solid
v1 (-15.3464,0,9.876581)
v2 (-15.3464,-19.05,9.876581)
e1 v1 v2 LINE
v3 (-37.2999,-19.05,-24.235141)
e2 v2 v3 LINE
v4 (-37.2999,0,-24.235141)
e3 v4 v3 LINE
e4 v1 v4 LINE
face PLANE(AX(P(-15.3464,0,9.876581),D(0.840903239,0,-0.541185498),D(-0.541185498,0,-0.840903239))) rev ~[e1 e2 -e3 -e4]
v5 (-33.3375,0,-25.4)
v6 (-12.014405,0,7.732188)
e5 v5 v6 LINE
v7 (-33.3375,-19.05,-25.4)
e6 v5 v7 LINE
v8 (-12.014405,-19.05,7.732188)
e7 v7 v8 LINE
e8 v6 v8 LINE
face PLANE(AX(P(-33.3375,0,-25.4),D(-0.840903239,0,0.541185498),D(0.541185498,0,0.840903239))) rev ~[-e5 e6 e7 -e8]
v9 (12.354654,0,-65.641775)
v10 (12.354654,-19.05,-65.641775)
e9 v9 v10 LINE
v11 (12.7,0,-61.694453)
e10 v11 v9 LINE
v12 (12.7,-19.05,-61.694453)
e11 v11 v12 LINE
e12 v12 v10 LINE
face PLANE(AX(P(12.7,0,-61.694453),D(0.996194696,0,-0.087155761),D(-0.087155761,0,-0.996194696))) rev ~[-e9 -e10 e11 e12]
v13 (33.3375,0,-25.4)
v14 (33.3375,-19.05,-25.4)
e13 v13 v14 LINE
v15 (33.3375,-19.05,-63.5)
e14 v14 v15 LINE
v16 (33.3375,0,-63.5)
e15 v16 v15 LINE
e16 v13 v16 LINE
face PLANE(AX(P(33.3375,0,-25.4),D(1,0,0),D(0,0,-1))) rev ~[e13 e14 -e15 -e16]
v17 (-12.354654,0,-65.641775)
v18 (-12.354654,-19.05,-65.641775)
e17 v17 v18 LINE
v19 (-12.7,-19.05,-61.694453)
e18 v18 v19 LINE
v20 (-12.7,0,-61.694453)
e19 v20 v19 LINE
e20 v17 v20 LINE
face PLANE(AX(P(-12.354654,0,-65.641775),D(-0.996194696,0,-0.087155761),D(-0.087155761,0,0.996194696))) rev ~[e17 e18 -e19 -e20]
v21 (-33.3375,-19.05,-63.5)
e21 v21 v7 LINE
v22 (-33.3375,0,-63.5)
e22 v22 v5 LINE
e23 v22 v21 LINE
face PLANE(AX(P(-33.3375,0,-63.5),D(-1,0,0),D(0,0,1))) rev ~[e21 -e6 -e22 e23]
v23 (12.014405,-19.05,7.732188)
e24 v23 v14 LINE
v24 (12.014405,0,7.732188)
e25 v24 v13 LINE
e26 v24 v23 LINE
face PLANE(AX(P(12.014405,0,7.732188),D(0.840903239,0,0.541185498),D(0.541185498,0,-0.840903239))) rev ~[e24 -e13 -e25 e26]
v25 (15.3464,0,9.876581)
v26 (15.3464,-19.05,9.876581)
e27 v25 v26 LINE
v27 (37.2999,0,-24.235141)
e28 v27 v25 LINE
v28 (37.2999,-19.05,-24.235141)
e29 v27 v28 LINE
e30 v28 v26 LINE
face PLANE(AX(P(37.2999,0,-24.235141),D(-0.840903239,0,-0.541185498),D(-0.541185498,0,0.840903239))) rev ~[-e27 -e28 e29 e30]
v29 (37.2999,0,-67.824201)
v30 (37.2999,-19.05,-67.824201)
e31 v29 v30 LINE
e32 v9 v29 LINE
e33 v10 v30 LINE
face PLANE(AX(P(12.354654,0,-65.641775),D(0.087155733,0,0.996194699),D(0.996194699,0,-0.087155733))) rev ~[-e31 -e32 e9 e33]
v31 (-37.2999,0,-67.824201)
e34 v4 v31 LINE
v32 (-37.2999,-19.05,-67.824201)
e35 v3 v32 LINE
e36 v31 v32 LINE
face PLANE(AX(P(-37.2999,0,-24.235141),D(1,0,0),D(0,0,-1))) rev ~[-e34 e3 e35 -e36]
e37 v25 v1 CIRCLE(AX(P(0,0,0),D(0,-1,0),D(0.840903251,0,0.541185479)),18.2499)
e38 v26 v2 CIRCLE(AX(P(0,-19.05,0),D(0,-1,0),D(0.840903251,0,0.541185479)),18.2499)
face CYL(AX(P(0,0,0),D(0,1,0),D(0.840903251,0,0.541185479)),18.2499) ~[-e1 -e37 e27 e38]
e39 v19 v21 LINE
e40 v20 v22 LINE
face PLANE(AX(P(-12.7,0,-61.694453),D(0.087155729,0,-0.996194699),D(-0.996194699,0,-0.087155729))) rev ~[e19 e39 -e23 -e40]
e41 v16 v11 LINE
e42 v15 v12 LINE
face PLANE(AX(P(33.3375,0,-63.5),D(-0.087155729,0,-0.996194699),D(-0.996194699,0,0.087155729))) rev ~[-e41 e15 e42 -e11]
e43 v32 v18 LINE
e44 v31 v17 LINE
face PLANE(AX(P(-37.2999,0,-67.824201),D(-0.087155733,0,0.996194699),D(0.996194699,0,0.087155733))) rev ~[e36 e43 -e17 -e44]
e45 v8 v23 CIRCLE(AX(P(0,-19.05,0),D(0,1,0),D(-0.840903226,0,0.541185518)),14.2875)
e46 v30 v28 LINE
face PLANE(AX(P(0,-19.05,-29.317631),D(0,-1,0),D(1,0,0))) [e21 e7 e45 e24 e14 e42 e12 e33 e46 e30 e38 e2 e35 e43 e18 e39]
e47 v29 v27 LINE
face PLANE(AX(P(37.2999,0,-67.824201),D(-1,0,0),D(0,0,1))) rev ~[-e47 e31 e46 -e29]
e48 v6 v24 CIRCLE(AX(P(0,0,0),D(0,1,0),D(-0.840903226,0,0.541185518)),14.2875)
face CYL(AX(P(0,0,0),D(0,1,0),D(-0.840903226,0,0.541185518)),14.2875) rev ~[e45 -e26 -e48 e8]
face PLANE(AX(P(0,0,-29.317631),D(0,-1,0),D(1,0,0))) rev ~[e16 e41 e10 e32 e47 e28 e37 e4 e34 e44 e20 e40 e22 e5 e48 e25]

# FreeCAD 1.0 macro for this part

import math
import FreeCAD as App
import Part
import Sketcher
Q = App.Units.Quantity

doc = App.newDocument("Part")
body = doc.addObject("PartDesign::Body", "Body")

# Sketch on XZ plane
sketch1 = body.newObject("Sketcher::SketchObject", "Sketch")
sketch1.AttachmentSupport = (doc.getObject("XZ_Plane"), [""])
sketch1.MapMode = "FlatFace"
sketch1.addGeometry([
    Part.ArcOfCircle(Part.Circle(App.Vector(0, 0, 0), App.Vector(0, 0, 1), 14.3), math.radians(33), math.radians(147)),  # 0
    Part.LineSegment(App.Vector(12, 7.7, 0), App.Vector(33.3, -25.4, 0)),  # 1
    Part.LineSegment(App.Vector(33.3, -25.4, 0), App.Vector(33.3, -63.5, 0)),  # 2
    Part.LineSegment(App.Vector(33.3, -63.5, 0), App.Vector(12.7, -61.7, 0)),  # 3
    Part.LineSegment(App.Vector(12.7, -61.7, 0), App.Vector(12.4, -65.6, 0)),  # 4
    Part.LineSegment(App.Vector(12.4, -65.6, 0), App.Vector(37.3, -67.8, 0)),  # 5
    Part.LineSegment(App.Vector(37.3, -67.8, 0), App.Vector(37.3, -24.2, 0)),  # 6
    Part.LineSegment(App.Vector(37.3, -24.2, 0), App.Vector(15.3, 9.9, 0)),  # 7
    Part.ArcOfCircle(Part.Circle(App.Vector(0, 0, 0), App.Vector(0, 0, 1), 18.2), math.radians(33), math.radians(147)),  # 8
    Part.LineSegment(App.Vector(-15.3, 9.9, 0), App.Vector(-37.3, -24.2, 0)),  # 9
    Part.LineSegment(App.Vector(-37.3, -24.2, 0), App.Vector(-37.3, -67.8, 0)),  # 10
    Part.LineSegment(App.Vector(-37.3, -67.8, 0), App.Vector(-12.4, -65.6, 0)),  # 11
    Part.LineSegment(App.Vector(-12.4, -65.6, 0), App.Vector(-12.7, -61.7, 0)),  # 12
    Part.LineSegment(App.Vector(-12.7, -61.7, 0), App.Vector(-33.3, -63.5, 0)),  # 13
    Part.LineSegment(App.Vector(-33.3, -63.5, 0), App.Vector(-33.3, -25.4, 0)),  # 14
    Part.LineSegment(App.Vector(-33.3, -25.4, 0), App.Vector(-12, 7.7, 0)),  # 15
], False)
sketch1.addConstraint([
    Sketcher.Constraint("Tangent", 0, 1, 1, 1),
    Sketcher.Constraint("Coincident", 1, 2, 2, 1),
    Sketcher.Constraint("Coincident", 2, 2, 3, 1),
    Sketcher.Constraint("Coincident", 3, 2, 4, 1),
    Sketcher.Constraint("Coincident", 4, 2, 5, 1),
    Sketcher.Constraint("Coincident", 5, 2, 6, 1),
    Sketcher.Constraint("Coincident", 6, 2, 7, 1),
    Sketcher.Constraint("Tangent", 7, 2, 8, 1),
    Sketcher.Constraint("Tangent", 8, 2, 9, 1),
    Sketcher.Constraint("Coincident", 9, 2, 10, 1),
    Sketcher.Constraint("Coincident", 10, 2, 11, 1),
    Sketcher.Constraint("Coincident", 11, 2, 12, 1),
    Sketcher.Constraint("Coincident", 12, 2, 13, 1),
    Sketcher.Constraint("Coincident", 13, 2, 14, 1),
    Sketcher.Constraint("Coincident", 14, 2, 15, 1),
    Sketcher.Constraint("Tangent", 15, 2, 0, 2),
    Sketcher.Constraint("Vertical", 2),
    Sketcher.Constraint("Vertical", 6),
    Sketcher.Constraint("Vertical", 10),
    Sketcher.Constraint("Vertical", 14),
    Sketcher.Constraint("Coincident", 0, 3, -1, 1),
    Sketcher.Constraint("Coincident", 8, 3, -1, 1),
    Sketcher.Constraint("Symmetric", 6, 2, 9, 2, -2),
    Sketcher.Constraint("Symmetric", 4, 2, 11, 2, -2),
    Sketcher.Constraint("Symmetric", 3, 2, 12, 2, -2),
    Sketcher.Constraint("Symmetric", 2, 2, 13, 2, -2),
    Sketcher.Constraint("Perpendicular", 3, 4),
    Sketcher.Constraint("Perpendicular", 4, 5),
    Sketcher.Constraint("Parallel", 1, 7),
    Sketcher.Constraint("Perpendicular", 11, 12),
    Sketcher.Constraint("Parallel", 9, 15),
    Sketcher.Constraint("DistanceY", 2, 2, 2, 1, Q("1.5 in")),
    Sketcher.Constraint("DistanceY", 1, 2, -1, 1, Q("1 in")),
    Sketcher.Constraint("Angle", 3, Q("175.000001 deg")),
    Sketcher.Constraint("Radius", 0, Q("0.5625 in")),
    Sketcher.Constraint("DistanceX", 12, 2, 3, 2, Q("1 in")),
    Sketcher.Constraint("Radius", 8, Q("0.7185 in")),
    Sketcher.Constraint("Distance", 4, Q("0.156 in")),
    Sketcher.Constraint("DistanceX", -1, 1, 1, 2, Q("1.3125 in")),
    Sketcher.Constraint("DistanceX", 2, 2, 5, 2, Q("0.156 in")),
])
pad1 = body.newObject("PartDesign::Pad", "Pad")
pad1.Profile = sketch1
pad1.Length = Q("0.75 in")

doc.recompute()
